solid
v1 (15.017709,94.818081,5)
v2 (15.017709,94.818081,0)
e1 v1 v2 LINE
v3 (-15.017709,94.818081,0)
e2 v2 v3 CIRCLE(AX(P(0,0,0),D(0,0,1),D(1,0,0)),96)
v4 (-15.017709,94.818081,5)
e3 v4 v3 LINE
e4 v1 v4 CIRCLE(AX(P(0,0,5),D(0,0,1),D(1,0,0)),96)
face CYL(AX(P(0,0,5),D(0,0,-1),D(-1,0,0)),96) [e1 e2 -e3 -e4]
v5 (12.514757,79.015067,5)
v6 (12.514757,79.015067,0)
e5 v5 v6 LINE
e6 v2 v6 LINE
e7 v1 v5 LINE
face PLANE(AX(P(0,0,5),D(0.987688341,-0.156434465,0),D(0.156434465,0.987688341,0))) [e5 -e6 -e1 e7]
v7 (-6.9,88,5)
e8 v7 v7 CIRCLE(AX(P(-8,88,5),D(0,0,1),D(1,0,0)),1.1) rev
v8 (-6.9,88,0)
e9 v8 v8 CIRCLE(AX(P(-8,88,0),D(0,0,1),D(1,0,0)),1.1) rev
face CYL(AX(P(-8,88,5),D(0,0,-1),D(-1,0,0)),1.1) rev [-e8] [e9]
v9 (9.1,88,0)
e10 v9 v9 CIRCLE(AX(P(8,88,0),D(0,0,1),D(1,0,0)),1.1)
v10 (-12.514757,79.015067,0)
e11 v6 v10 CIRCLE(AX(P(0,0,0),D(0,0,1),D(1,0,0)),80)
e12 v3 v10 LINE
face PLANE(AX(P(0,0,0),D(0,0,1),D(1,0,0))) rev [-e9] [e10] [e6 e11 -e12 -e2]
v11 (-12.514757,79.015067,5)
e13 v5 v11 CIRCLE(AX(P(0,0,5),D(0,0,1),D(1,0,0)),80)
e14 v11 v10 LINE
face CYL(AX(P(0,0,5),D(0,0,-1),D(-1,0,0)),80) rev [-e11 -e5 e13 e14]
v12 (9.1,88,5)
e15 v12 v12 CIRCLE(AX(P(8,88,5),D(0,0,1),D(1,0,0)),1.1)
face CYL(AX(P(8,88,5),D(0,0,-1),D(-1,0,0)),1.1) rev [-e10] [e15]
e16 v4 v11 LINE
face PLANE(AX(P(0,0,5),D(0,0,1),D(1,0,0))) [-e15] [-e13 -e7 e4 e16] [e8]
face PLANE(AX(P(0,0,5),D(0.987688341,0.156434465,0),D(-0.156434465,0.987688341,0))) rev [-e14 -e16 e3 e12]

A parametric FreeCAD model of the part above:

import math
import FreeCAD as App
import Part
import Sketcher
Q = App.Units.Quantity

doc = App.newDocument("Part")
params = doc.addObject("Spreadsheet::Sheet", "Params")
for row, (alias, value) in enumerate([
    ("sketch1_radius", "80 mm"),
    ("sketch1_radius2", "96 mm"),
    ("sketch1_diameter", "2.2 mm"),
    ("sketch1_length", "6 mm"),
    ("pad1_length", "5 mm"),
], start=1):
    params.set(f"A{row}", alias)
    params.set(f"B{row}", "=" + value)
    params.setAlias(f"B{row}", alias)

body = doc.addObject("PartDesign::Body", "Body")

# Sketch on XY plane
sketch1 = body.newObject("Sketcher::SketchObject", "Sketch")
sketch1.AttachmentSupport = (doc.getObject("XY_Plane"), [""])
sketch1.MapMode = "FlatFace"
sketch1.addGeometry([
    Part.LineSegment(App.Vector(-13.5, 84.9, 0), App.Vector(-12.5, 79, 0)),  # 0
    Part.ArcOfCircle(Part.Circle(App.Vector(0, 0, 0), App.Vector(0, 0, 1), 80), math.radians(81), math.radians(99)),  # 1
    Part.LineSegment(App.Vector(12.5, 79, 0), App.Vector(13.5, 84.9, 0)),  # 2
    Part.LineSegment(App.Vector(13.5, 84.9, 0), App.Vector(14.1, 88.9, 0)),  # 3
    Part.LineSegment(App.Vector(14.1, 88.9, 0), App.Vector(15, 94.8, 0)),  # 4
    Part.ArcOfCircle(Part.Circle(App.Vector(0, 0, 0), App.Vector(0, 0, 1), 96), math.radians(81), math.radians(99)),  # 5
    Part.LineSegment(App.Vector(-15, 94.8, 0), App.Vector(-14.1, 88.9, 0)),  # 6
    Part.LineSegment(App.Vector(-14.1, 88.9, 0), App.Vector(-13.5, 84.9, 0)),  # 7
    Part.Circle(App.Vector(-8, 88, 0), App.Vector(0, 0, 1), 1.1),  # 8
    Part.Circle(App.Vector(8, 88, 0), App.Vector(0, 0, 1), 1.1),  # 9
], False)
sketch1.addConstraint([
    Sketcher.Constraint("Coincident", 0, 2, 1, 2),
    Sketcher.Constraint("Coincident", 1, 1, 2, 1),
    Sketcher.Constraint("Coincident", 2, 2, 3, 1),
    Sketcher.Constraint("Coincident", 3, 2, 4, 1),
    Sketcher.Constraint("Coincident", 4, 2, 5, 1),
    Sketcher.Constraint("Coincident", 5, 2, 6, 1),
    Sketcher.Constraint("Coincident", 6, 2, 7, 1),
    Sketcher.Constraint("Coincident", 7, 2, 0, 1),
    Sketcher.Constraint("Coincident", 1, 3, -1, 1),
    Sketcher.Constraint("Coincident", 5, 3, -1, 1),
    Sketcher.Constraint("Equal", 8, 9),
    Sketcher.Constraint("Symmetric", 8, 3, 9, 3, -2),
    Sketcher.Constraint("Symmetric", 3, 2, 6, 2, -2),
    Sketcher.Constraint("Symmetric", 2, 2, 7, 2, -2),
    Sketcher.Constraint("Parallel", 2, 3),
    Sketcher.Constraint("Parallel", 3, 4),
    Sketcher.Constraint("Parallel", 0, 6),
    Sketcher.Constraint("Parallel", 6, 7),
    Sketcher.Constraint("Equal", 2, 4),
    Sketcher.Constraint("Radius", 1, 80.0),
    Sketcher.Constraint("Radius", 5, 96.0),
    Sketcher.Constraint("Diameter", 8, 2.2),
    Sketcher.Constraint("Angle", 0, Q("-81 deg")),
    Sketcher.Constraint("Distance", 0, 6.0),
    Sketcher.Constraint("DistanceX", 8, 3, -1, 1, 8.0),
    Sketcher.Constraint("DistanceY", -1, 1, 8, 3, 88.0),
    Sketcher.Constraint("DistanceX", -1, 1, 3, 2, 14.079102),
])
sketch1.setExpression("Constraints[19]", "Params.sketch1_radius")
sketch1.setExpression("Constraints[20]", "Params.sketch1_radius2")
sketch1.setExpression("Constraints[21]", "Params.sketch1_diameter")
sketch1.setExpression("Constraints[23]", "Params.sketch1_length")
pad1 = body.newObject("PartDesign::Pad", "Pad")
pad1.Profile = sketch1
pad1.setExpression("Length", "Params.pad1_length")

doc.recompute()
